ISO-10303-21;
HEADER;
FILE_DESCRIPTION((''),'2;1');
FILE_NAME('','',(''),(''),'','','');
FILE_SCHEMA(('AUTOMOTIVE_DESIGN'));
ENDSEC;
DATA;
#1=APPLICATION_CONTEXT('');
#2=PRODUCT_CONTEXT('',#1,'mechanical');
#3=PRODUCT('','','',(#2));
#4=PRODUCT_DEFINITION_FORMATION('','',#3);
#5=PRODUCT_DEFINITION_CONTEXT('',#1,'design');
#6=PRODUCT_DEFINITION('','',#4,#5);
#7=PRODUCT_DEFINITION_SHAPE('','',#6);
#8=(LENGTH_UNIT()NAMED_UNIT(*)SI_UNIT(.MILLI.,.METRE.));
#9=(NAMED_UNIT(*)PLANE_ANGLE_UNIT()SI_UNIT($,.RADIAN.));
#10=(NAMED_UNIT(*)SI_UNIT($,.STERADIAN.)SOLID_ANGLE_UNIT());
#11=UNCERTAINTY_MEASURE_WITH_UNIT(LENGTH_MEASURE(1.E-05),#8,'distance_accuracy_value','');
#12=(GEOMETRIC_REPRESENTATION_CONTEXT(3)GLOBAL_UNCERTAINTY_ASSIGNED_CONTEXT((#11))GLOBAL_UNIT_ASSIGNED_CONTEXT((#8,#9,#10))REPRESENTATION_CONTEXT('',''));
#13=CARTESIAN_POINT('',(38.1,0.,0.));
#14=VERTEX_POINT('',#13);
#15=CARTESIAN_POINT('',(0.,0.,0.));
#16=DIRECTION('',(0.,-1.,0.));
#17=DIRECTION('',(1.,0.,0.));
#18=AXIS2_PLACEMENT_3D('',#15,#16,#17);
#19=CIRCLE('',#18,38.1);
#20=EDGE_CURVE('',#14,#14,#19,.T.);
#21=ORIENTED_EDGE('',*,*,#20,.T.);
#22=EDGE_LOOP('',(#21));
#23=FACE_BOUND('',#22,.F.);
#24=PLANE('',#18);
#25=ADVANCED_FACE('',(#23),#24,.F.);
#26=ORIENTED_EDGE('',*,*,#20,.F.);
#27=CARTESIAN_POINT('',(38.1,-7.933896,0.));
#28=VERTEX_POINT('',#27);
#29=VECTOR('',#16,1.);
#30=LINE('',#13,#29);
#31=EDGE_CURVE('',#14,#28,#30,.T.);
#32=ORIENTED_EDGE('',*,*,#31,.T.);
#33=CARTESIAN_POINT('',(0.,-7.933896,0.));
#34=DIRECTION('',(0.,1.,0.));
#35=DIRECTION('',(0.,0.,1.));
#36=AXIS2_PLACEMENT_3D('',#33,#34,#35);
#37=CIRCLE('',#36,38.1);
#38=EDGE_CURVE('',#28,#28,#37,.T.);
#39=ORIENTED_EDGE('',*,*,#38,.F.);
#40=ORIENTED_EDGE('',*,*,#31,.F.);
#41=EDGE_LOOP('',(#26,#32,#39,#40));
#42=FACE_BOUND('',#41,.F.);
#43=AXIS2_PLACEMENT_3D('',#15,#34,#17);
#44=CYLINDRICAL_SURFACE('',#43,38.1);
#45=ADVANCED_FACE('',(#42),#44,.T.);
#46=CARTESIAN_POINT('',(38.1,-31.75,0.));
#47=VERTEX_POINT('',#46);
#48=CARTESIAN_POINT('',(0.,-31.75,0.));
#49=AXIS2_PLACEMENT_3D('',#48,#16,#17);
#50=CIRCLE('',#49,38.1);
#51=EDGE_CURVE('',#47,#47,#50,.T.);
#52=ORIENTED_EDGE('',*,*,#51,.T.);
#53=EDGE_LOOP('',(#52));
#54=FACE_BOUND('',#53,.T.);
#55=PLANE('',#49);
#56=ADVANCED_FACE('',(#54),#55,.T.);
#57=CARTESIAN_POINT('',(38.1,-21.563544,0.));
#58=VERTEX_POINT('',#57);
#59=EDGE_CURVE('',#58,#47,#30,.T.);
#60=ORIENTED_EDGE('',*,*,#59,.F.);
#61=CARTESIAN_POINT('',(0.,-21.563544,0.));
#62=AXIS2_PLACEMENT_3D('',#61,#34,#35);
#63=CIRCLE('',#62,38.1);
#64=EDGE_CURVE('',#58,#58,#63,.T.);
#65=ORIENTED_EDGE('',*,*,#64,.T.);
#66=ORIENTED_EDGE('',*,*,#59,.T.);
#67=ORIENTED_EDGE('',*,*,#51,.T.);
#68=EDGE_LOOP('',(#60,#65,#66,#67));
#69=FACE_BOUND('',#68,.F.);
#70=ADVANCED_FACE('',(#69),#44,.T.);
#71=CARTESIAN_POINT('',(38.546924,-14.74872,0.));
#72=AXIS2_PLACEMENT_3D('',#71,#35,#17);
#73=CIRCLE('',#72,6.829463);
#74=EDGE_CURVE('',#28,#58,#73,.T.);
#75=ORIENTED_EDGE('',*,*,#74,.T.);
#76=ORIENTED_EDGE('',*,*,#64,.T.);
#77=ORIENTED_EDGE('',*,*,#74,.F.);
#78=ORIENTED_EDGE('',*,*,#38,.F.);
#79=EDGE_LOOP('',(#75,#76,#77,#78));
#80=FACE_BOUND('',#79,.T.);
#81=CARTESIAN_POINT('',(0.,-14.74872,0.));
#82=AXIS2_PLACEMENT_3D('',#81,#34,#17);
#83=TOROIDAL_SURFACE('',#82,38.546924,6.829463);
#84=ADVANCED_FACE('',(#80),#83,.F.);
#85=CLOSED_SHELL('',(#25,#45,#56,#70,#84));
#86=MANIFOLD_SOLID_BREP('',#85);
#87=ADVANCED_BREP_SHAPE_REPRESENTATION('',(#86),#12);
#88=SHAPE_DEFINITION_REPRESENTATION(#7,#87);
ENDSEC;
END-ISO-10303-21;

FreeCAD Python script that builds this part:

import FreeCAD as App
import Part
import Sketcher

V = App.Vector
Q = App.Units.Quantity

doc = App.newDocument("Part")
params = doc.addObject("Spreadsheet::Sheet", "Params")
for row, (alias, value) in enumerate([
    ("sketch1_diameter", "3 in"),
    ("pad1_length", "1.25 in"),
    ("groove_angle", "360 deg"),
], start=1):
    params.set(f"A{row}", alias)
    params.set(f"B{row}", "=" + value)
    params.setAlias(f"B{row}", alias)

body = doc.addObject("PartDesign::Body", "Body")

# Sketch on XZ plane
sketch1 = doc.addObject("Sketcher::SketchObject", "Sketch")
body.addObject(sketch1)
sketch1.AttachmentSupport = (doc.XZ_Plane, [""])
sketch1.MapMode = "FlatFace"
sketch1.addGeometry(Part.Circle(V(0, 0, 0), V(0, 0, 1), 38.1), False)
sketch1.addConstraint([
    Sketcher.Constraint("Coincident", 0, 3, -1, 1),
    Sketcher.Constraint("Diameter", 0, Q("3 in")),
])
sketch1.setExpression("Constraints[1]", "Params.sketch1_diameter")
pad1 = doc.addObject("PartDesign::Pad", "Pad")
body.addObject(pad1)
pad1.Profile = sketch1
pad1.setExpression("Length", "Params.pad1_length")

# Sketch on XY plane
sketch2 = doc.addObject("Sketcher::SketchObject", "Sketch001")
body.addObject(sketch2)
sketch2.AttachmentSupport = (doc.XY_Plane, [""])
sketch2.MapMode = "FlatFace"
sketch2.addGeometry(Part.Circle(V(38.546924, -14.74872, 0), V(0, 0, 1), 6.829463), False)
sketch2.addConstraint([
    Sketcher.Constraint("Diameter", 0, 13.658926),
    Sketcher.Constraint("DistanceY", 0, 3, -1, 1, 14.74872),
    Sketcher.Constraint("DistanceX", -1, 1, 0, 3, 38.546924),
])
groove = doc.addObject("PartDesign::Groove", "Groove")
body.addObject(groove)
groove.Profile = sketch2
groove.ReferenceAxis = (sketch2, ["V_Axis"])
groove.setExpression("Angle", "Params.groove_angle")

doc.recompute()
